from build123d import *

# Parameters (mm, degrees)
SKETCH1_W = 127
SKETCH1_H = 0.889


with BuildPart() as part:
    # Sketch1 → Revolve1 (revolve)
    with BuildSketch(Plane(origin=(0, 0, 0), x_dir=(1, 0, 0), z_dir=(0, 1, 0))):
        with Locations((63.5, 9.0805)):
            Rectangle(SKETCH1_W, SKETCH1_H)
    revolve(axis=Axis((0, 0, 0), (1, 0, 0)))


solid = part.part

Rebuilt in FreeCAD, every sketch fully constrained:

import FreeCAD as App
import Part
import Sketcher
Q = App.Units.Quantity

doc = App.newDocument("Part")
body = doc.addObject("PartDesign::Body", "Body")

# Sketch on XZ plane
sketch1 = body.newObject("Sketcher::SketchObject", "Sketch")
sketch1.AttachmentSupport = (doc.getObject("XZ_Plane"), [""])
sketch1.MapMode = "FlatFace"
sketch1.addGeometry([
    Part.LineSegment(App.Vector(0, -9.5, 0), App.Vector(0, -8.6, 0)),
    Part.LineSegment(App.Vector(0, -8.6, 0), App.Vector(127, -8.6, 0)),
    Part.LineSegment(App.Vector(127, -8.6, 0), App.Vector(127, -9.5, 0)),
    Part.LineSegment(App.Vector(127, -9.5, 0), App.Vector(0, -9.5, 0)),
], False)
sketch1.addConstraint([
    Sketcher.Constraint("Coincident", 0, 2, 1, 1),
    Sketcher.Constraint("Coincident", 1, 2, 2, 1),
    Sketcher.Constraint("Coincident", 2, 2, 3, 1),
    Sketcher.Constraint("Coincident", 3, 2, 0, 1),
    Sketcher.Constraint("Vertical", 0),
    Sketcher.Constraint("Horizontal", 1),
    Sketcher.Constraint("Vertical", 2),
    Sketcher.Constraint("Horizontal", 3),
    Sketcher.Constraint("PointOnObject", 0, 2, -2),
    Sketcher.Constraint("DistanceX", 1, 1, 1, 2, Q("5 in")),
    Sketcher.Constraint("DistanceY", 0, 1, 0, 2, Q("0.035 in")),
    Sketcher.Constraint("DistanceY", 0, 2, -1, 1, Q("0.34 in")),
])
revolution = body.newObject("PartDesign::Revolution", "Revolution")
revolution.Profile = sketch1
revolution.ReferenceAxis = (sketch1, ["H_Axis"])
revolution.Angle = 360

doc.recompute()
